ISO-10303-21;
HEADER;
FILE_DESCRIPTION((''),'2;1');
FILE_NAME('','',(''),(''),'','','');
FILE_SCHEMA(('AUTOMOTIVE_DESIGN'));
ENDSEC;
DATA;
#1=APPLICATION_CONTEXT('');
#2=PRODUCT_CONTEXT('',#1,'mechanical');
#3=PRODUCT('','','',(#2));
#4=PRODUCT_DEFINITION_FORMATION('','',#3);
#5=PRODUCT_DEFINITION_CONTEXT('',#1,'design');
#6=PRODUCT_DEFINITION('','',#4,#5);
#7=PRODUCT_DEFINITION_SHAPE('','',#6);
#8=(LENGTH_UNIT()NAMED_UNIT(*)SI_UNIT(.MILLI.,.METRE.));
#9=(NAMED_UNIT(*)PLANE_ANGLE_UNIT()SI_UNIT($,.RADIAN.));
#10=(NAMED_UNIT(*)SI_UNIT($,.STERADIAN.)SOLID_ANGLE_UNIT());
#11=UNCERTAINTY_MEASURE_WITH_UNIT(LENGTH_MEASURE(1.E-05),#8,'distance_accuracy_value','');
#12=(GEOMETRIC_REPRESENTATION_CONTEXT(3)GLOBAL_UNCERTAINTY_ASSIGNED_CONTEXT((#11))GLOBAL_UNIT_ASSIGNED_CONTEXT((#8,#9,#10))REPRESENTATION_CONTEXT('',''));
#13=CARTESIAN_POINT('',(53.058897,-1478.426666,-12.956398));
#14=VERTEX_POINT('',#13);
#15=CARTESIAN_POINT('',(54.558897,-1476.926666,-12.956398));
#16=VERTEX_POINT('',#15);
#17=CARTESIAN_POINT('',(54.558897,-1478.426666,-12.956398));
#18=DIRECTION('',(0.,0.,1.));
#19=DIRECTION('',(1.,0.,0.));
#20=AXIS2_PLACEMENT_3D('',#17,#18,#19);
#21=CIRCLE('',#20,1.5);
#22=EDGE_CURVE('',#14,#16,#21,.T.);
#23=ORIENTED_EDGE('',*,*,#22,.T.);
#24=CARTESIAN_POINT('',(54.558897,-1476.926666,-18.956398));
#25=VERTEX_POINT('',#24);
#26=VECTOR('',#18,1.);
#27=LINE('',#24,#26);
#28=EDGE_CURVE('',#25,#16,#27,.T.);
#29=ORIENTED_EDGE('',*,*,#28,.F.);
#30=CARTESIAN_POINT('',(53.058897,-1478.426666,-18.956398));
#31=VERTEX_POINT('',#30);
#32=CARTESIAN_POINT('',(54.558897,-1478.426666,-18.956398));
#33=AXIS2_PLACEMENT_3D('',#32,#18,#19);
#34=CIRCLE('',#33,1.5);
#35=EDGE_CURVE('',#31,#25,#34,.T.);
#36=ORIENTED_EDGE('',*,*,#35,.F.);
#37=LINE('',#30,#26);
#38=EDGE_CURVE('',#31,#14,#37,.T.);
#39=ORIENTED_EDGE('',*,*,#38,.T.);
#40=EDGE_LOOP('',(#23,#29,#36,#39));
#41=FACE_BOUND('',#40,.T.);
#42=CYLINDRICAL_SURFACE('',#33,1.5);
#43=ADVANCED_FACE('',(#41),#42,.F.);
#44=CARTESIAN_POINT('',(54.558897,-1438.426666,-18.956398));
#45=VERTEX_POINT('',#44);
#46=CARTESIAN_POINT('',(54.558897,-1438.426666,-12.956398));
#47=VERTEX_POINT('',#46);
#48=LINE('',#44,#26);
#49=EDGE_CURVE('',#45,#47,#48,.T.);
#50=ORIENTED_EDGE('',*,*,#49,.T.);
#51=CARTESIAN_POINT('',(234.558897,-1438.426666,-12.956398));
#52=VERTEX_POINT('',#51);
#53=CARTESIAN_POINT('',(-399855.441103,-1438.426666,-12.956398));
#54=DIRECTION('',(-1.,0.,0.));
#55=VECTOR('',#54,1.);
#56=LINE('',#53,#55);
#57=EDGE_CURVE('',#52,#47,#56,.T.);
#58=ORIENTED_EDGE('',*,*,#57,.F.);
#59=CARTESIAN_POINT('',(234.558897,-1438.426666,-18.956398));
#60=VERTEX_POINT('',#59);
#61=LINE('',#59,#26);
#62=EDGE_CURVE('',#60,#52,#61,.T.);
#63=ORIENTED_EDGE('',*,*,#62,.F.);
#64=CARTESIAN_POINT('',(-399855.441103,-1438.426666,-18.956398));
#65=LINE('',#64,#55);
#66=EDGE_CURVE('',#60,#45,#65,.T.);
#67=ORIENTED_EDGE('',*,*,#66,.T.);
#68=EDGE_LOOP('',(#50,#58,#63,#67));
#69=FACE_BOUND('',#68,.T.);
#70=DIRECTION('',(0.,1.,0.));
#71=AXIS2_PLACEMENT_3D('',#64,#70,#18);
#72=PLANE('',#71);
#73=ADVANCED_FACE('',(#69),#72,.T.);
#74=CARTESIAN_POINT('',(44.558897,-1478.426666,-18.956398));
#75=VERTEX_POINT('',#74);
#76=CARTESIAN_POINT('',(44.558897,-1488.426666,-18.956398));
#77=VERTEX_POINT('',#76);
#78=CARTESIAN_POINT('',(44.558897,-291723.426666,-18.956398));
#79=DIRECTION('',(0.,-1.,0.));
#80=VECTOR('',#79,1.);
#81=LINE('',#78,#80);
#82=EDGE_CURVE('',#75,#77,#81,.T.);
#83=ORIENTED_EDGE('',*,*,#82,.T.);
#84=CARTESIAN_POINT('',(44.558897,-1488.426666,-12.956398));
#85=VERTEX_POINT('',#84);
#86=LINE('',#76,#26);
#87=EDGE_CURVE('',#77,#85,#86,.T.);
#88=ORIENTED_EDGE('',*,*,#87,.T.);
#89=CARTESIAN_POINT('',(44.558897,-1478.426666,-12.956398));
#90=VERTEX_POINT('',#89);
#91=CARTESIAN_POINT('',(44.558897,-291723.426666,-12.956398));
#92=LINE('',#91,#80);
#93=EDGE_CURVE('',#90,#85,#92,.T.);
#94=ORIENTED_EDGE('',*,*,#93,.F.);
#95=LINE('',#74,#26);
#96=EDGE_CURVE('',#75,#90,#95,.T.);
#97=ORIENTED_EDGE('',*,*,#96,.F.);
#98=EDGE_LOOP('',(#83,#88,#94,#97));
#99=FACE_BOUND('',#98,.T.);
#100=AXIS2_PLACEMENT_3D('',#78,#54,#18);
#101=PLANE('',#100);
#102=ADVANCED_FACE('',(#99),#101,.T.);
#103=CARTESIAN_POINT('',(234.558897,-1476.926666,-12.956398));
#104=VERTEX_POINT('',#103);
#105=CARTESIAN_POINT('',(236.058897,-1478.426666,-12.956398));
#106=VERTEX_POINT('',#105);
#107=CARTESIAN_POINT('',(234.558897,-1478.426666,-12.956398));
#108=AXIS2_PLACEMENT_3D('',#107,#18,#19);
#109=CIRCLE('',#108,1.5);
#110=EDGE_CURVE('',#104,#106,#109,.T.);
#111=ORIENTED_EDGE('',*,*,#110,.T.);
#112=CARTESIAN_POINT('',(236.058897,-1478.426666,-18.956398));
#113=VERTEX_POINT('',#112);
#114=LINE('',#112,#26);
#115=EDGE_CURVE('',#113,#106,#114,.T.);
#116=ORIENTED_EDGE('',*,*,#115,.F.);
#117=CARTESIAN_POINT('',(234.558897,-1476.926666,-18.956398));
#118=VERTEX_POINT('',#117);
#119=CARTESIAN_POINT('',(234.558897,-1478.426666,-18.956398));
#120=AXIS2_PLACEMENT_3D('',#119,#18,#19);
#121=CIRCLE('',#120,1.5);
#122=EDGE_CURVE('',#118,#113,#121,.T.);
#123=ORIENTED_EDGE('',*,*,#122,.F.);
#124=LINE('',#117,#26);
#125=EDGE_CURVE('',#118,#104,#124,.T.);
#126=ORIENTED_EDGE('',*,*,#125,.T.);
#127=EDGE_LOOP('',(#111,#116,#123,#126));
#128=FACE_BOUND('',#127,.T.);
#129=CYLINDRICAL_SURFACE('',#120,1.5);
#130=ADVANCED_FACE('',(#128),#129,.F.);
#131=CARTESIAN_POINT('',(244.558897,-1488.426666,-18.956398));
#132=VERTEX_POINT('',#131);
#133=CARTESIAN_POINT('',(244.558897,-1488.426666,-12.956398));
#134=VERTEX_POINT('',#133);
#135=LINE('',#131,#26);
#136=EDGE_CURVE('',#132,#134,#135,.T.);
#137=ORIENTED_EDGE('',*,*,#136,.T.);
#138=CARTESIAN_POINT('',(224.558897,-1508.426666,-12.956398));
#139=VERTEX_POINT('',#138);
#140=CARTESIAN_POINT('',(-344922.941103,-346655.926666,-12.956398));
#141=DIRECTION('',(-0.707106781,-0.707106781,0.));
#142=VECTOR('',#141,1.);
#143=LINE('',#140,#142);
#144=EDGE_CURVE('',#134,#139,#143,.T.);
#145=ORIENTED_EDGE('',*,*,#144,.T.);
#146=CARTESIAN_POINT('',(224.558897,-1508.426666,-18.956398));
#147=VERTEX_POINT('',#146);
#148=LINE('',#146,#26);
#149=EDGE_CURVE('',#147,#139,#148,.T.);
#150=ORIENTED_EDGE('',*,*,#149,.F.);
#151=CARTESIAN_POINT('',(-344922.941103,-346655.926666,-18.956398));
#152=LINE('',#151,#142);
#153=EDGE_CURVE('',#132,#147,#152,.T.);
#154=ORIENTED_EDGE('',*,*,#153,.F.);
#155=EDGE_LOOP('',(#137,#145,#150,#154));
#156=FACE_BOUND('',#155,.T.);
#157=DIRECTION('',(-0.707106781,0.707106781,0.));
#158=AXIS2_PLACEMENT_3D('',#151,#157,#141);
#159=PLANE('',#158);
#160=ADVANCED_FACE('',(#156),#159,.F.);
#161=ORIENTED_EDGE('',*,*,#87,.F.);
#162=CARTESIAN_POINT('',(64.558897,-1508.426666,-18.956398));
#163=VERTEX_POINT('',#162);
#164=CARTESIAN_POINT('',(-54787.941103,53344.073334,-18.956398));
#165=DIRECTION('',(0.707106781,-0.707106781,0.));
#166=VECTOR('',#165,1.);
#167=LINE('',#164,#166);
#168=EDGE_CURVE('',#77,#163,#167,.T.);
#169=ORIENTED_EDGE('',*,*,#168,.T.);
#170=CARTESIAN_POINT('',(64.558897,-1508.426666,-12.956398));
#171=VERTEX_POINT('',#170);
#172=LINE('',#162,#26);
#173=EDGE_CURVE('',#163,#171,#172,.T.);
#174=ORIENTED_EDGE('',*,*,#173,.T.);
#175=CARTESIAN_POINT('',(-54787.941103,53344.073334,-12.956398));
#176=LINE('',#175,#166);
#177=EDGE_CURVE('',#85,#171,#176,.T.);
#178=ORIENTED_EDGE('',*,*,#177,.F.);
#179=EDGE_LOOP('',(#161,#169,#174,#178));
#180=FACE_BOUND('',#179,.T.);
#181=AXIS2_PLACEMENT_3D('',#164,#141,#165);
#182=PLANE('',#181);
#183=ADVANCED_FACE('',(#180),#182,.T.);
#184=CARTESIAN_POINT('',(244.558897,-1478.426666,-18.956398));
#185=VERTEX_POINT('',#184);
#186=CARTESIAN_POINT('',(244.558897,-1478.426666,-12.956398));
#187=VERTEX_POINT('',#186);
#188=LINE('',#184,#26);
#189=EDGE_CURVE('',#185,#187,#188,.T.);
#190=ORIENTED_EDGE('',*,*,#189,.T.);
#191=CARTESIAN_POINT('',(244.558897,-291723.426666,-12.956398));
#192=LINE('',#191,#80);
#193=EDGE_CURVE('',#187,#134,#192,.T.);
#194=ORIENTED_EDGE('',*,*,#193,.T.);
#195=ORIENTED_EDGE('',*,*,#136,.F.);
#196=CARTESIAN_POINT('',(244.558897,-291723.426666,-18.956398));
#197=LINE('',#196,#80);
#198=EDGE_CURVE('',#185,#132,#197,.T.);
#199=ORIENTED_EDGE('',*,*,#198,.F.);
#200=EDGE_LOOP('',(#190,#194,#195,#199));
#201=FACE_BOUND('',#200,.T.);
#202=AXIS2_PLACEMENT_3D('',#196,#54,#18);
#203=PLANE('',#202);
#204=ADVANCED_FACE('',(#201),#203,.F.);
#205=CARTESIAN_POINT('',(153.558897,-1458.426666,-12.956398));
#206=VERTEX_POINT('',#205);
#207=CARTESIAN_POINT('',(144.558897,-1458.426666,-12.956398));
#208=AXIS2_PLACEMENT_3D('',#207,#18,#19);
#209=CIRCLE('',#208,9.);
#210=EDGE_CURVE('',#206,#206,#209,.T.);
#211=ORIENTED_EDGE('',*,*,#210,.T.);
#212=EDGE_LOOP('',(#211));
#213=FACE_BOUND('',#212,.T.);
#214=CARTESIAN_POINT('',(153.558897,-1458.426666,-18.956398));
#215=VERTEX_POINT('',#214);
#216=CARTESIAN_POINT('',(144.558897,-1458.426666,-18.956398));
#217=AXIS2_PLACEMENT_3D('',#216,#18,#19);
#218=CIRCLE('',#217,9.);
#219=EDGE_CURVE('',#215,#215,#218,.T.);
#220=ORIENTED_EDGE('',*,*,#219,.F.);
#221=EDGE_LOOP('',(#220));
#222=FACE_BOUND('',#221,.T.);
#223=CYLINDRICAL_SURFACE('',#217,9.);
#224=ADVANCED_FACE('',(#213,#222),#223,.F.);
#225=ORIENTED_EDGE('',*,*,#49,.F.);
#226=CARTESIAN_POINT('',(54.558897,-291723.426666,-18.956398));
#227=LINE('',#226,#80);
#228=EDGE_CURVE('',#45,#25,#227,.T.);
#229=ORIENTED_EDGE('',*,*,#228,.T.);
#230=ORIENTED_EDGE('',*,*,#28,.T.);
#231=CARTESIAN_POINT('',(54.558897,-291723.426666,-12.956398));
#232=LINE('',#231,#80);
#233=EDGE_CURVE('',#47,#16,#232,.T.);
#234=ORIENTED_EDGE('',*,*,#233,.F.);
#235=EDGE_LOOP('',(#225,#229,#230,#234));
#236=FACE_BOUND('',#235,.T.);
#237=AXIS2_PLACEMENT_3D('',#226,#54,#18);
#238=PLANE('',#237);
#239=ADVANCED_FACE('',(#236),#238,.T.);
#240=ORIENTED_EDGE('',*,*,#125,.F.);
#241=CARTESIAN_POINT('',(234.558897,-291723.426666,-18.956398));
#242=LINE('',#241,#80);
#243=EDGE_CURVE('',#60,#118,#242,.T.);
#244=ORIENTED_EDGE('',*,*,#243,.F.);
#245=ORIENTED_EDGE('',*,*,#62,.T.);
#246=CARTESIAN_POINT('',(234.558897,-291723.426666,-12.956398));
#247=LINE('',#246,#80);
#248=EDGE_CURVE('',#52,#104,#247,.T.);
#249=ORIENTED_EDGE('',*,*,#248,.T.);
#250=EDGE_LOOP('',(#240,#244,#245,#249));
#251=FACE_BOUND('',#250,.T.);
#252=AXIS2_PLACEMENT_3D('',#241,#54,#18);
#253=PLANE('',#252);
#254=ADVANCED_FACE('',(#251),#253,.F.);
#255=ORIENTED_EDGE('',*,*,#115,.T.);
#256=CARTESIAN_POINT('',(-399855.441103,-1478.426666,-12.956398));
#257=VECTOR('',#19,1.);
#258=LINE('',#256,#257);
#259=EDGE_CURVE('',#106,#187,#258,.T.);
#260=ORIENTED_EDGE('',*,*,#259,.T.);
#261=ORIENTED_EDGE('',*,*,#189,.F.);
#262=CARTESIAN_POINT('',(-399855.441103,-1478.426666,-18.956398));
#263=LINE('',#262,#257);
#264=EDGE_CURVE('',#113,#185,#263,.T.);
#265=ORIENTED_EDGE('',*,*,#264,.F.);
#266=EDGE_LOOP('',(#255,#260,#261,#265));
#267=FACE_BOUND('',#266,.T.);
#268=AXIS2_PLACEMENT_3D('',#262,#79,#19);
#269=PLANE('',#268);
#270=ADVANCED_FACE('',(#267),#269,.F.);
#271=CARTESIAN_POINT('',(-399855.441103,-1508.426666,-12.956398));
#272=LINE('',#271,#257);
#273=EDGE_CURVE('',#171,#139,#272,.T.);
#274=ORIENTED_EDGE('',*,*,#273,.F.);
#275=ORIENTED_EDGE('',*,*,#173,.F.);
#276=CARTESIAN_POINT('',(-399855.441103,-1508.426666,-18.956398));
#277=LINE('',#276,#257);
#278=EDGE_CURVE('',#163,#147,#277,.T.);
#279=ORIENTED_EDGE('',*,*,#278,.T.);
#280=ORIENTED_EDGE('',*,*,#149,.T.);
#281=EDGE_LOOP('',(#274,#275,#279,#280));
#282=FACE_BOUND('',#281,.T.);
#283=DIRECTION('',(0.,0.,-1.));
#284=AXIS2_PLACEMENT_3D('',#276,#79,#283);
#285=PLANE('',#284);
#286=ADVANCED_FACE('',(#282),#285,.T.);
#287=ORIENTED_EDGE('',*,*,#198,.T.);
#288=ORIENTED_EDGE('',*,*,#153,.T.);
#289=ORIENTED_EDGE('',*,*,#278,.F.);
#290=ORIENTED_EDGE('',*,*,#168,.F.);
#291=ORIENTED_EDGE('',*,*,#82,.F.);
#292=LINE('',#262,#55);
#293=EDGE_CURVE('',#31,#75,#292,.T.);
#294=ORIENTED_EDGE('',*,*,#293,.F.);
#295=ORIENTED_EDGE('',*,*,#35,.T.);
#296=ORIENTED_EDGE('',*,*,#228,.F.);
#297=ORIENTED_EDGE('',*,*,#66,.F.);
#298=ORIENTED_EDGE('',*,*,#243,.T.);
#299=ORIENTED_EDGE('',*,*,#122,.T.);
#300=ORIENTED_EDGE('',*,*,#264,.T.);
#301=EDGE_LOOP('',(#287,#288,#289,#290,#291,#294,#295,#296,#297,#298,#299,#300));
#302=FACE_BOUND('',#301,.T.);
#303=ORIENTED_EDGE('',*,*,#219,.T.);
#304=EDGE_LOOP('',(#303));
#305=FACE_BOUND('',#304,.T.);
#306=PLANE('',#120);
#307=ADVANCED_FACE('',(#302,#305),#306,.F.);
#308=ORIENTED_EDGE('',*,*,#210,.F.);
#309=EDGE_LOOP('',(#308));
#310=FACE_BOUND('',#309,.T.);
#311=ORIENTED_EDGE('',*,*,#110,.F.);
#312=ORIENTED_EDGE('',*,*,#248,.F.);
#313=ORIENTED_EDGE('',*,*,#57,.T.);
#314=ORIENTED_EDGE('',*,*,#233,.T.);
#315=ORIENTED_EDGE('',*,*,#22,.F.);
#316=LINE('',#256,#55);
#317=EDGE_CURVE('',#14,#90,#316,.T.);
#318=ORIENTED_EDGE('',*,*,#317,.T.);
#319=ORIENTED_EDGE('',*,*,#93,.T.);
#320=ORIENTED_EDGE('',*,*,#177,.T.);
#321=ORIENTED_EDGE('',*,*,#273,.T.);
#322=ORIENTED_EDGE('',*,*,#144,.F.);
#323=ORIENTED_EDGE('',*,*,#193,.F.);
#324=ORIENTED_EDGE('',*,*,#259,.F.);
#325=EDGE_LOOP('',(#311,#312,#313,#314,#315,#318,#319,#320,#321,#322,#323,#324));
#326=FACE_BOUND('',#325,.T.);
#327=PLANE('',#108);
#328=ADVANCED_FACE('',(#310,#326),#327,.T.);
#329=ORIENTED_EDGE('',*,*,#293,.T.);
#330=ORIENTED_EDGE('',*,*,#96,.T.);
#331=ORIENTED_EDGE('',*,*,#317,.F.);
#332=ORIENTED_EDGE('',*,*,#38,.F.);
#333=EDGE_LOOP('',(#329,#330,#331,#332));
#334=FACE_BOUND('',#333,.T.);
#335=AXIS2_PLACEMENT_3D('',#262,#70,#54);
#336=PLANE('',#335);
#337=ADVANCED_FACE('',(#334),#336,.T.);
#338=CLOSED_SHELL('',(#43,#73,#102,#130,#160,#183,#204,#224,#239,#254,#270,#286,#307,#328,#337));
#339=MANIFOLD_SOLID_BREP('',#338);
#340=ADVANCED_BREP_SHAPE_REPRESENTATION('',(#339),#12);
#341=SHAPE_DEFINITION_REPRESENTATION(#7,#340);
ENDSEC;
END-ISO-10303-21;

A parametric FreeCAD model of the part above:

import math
import FreeCAD as App
import Part
import Sketcher
from FreeCAD import Vector
Q = App.Units.Quantity

doc = App.newDocument("Part")
body = doc.addObject("PartDesign::Body", "Body")

# Sketch on XY plane
sketch1 = body.newObject("Sketcher::SketchObject", "Sketch")
sketch1.AttachmentSupport = (doc.getObject("XY_Plane"), [""])
sketch1.MapMode = "FlatFace"
sketch1.AttachmentOffset = App.Placement(Vector(0, 0, -18.956398), App.Rotation())
sketch1.addGeometry([
    Part.LineSegment(Vector(54.558897, -1438.426666, 0), Vector(54.558897, -1476.926666, 0)),  # 0
    Part.ArcOfCircle(Part.Circle(Vector(54.558897, -1478.426666, 0), Vector(0, 0, 1), 1.5), math.radians(0), math.radians(90)),  # 1
    Part.ArcOfCircle(Part.Circle(Vector(54.558897, -1478.426666, 0), Vector(0, 0, 1), 1.5), math.radians(180), math.radians(360)),  # 2
    Part.LineSegment(Vector(53.058897, -1478.426666, 0), Vector(44.558897, -1478.426666, 0)),  # 3
    Part.LineSegment(Vector(44.558897, -1478.426666, 0), Vector(44.558897, -1488.426666, 0)),  # 4
    Part.LineSegment(Vector(44.558897, -1488.426666, 0), Vector(64.558897, -1508.426666, 0)),  # 5
    Part.LineSegment(Vector(64.558897, -1508.426666, 0), Vector(224.558897, -1508.426666, 0)),  # 6
    Part.LineSegment(Vector(224.558897, -1508.426666, 0), Vector(244.558897, -1488.426666, 0)),  # 7
    Part.LineSegment(Vector(244.558897, -1488.426666, 0), Vector(244.558897, -1478.426666, 0)),  # 8
    Part.LineSegment(Vector(244.558897, -1478.426666, 0), Vector(236.058897, -1478.426666, 0)),  # 9
    Part.ArcOfCircle(Part.Circle(Vector(234.558897, -1478.426666, 0), Vector(0, 0, 1), 1.5), math.radians(90), math.radians(360)),  # 10
    Part.LineSegment(Vector(234.558897, -1476.926666, 0), Vector(234.558897, -1438.426666, 0)),  # 11
    Part.LineSegment(Vector(234.558897, -1438.426666, 0), Vector(54.558897, -1438.426666, 0)),  # 12
    Part.ArcOfCircle(Part.Circle(Vector(144.558897, -1458.426666, 0), Vector(0, 0, 1), 9), math.radians(90), math.radians(270)),  # 13
    Part.ArcOfCircle(Part.Circle(Vector(144.558897, -1458.426666, 0), Vector(0, 0, 1), 9), math.radians(0), math.radians(90)),  # 14
    Part.ArcOfCircle(Part.Circle(Vector(144.558897, -1458.426666, 0), Vector(0, 0, 1), 9), math.radians(-90), math.radians(0)),  # 15
], False)
sketch1.addConstraint([
    Sketcher.Constraint("Coincident", 0, 2, 1, 2),
    Sketcher.Constraint("Tangent", 1, 1, 2, 2),
    Sketcher.Constraint("Coincident", 2, 1, 3, 1),
    Sketcher.Constraint("Coincident", 3, 2, 4, 1),
    Sketcher.Constraint("Coincident", 4, 2, 5, 1),
    Sketcher.Constraint("Coincident", 5, 2, 6, 1),
    Sketcher.Constraint("Coincident", 6, 2, 7, 1),
    Sketcher.Constraint("Coincident", 7, 2, 8, 1),
    Sketcher.Constraint("Coincident", 8, 2, 9, 1),
    Sketcher.Constraint("Coincident", 9, 2, 10, 2),
    Sketcher.Constraint("Coincident", 10, 1, 11, 1),
    Sketcher.Constraint("Coincident", 11, 2, 12, 1),
    Sketcher.Constraint("Coincident", 12, 2, 0, 1),
    Sketcher.Constraint("Tangent", 13, 1, 14, 2),
    Sketcher.Constraint("Tangent", 14, 1, 15, 2),
    Sketcher.Constraint("Tangent", 15, 1, 13, 2),
    Sketcher.Constraint("Vertical", 0),
    Sketcher.Constraint("Horizontal", 3),
    Sketcher.Constraint("Vertical", 4),
    Sketcher.Constraint("Horizontal", 6),
    Sketcher.Constraint("Vertical", 8),
    Sketcher.Constraint("Horizontal", 9),
    Sketcher.Constraint("Vertical", 11),
    Sketcher.Constraint("Horizontal", 12),
    Sketcher.Constraint("Equal", 1, 2),
    Sketcher.Constraint("Equal", 2, 10),
    Sketcher.Constraint("Perpendicular", 5, 7),
    Sketcher.Constraint("Horizontal", 2, 3, 10, 3),
    Sketcher.Constraint("Horizontal", 10, 3, 1, 1),
    Sketcher.Constraint("Horizontal", 1, 1, 2, 1),
    Sketcher.Constraint("Horizontal", 4, 2, 7, 2),
    Sketcher.Constraint("Horizontal", 3, 2, 8, 2),
    Sketcher.Constraint("Horizontal", 15, 3, 14, 1),
    Sketcher.Constraint("Vertical", 2, 3, 0, 2),
    Sketcher.Constraint("Vertical", 15, 3, 13, 1),
    Sketcher.Constraint("Vertical", 13, 1, 15, 1),
    Sketcher.Constraint("Equal", 3, 9),
    Sketcher.Constraint("Equal", 5, 7),
    Sketcher.Constraint("Radius", 13, Q("9 mm")),
    Sketcher.Constraint("Radius", 1, Q("1.5 mm")),
    Sketcher.Constraint("DistanceX", 6, 1, 6, 2, Q("160 mm")),
    Sketcher.Constraint("DistanceX", 12, 2, 12, 1, Q("180 mm")),
    Sketcher.Constraint("DistanceY", 4, 2, 4, 1, Q("10 mm")),
    Sketcher.Constraint("DistanceX", 3, 2, 3, 1, Q("8.5 mm")),
    Sketcher.Constraint("DistanceY", 0, 2, 0, 1, Q("38.5 mm")),
    Sketcher.Constraint("DistanceX", 1, 3, 10, 3, Q("180 mm")),
    Sketcher.Constraint("DistanceX", 1, 3, 13, 3, Q("90 mm")),
    Sketcher.Constraint("DistanceY", 1, 3, 13, 3, Q("20 mm")),
    Sketcher.Constraint("DistanceX", -1, 1, 1, 3, Q("54.558897 mm")),
    Sketcher.Constraint("DistanceY", 1, 3, -1, 1, Q("1478.426666 mm")),
])
pad1 = body.newObject("PartDesign::Pad", "Pad")
pad1.Profile = sketch1
pad1.Length = 6.000001

doc.recompute()
